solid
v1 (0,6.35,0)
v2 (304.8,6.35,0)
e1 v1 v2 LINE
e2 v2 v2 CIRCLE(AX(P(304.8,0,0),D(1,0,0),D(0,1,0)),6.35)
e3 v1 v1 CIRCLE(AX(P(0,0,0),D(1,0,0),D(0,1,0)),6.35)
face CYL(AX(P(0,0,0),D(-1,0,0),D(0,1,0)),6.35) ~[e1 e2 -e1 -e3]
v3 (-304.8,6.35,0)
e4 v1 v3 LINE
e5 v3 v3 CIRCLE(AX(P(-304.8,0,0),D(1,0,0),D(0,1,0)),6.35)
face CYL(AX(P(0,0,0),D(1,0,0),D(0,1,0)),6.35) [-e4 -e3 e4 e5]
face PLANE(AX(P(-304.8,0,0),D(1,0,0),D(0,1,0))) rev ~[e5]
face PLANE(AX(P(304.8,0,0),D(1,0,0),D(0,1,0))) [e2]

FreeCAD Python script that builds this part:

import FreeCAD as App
import Part
import Sketcher
Q = App.Units.Quantity

doc = App.newDocument("Part")
body = doc.addObject("PartDesign::Body", "Body")

# Sketch on YZ plane
sketch1 = body.newObject("Sketcher::SketchObject", "Sketch")
sketch1.AttachmentSupport = (doc.getObject("YZ_Plane"), [""])
sketch1.MapMode = "FlatFace"
sketch1.addGeometry(Part.Circle(App.Vector(0, 0, 0), App.Vector(0, 0, 1), 6), False)
sketch1.addConstraint([
    Sketcher.Constraint("Coincident", 0, 3, -1, 1),
    Sketcher.Constraint("Diameter", 0, Q("0.5 in")),
])
pad1 = body.newObject("PartDesign::Pad", "Pad")
pad1.Profile = sketch1
pad1.Length = Q("24 in")
pad1.Midplane = True

doc.recompute()
